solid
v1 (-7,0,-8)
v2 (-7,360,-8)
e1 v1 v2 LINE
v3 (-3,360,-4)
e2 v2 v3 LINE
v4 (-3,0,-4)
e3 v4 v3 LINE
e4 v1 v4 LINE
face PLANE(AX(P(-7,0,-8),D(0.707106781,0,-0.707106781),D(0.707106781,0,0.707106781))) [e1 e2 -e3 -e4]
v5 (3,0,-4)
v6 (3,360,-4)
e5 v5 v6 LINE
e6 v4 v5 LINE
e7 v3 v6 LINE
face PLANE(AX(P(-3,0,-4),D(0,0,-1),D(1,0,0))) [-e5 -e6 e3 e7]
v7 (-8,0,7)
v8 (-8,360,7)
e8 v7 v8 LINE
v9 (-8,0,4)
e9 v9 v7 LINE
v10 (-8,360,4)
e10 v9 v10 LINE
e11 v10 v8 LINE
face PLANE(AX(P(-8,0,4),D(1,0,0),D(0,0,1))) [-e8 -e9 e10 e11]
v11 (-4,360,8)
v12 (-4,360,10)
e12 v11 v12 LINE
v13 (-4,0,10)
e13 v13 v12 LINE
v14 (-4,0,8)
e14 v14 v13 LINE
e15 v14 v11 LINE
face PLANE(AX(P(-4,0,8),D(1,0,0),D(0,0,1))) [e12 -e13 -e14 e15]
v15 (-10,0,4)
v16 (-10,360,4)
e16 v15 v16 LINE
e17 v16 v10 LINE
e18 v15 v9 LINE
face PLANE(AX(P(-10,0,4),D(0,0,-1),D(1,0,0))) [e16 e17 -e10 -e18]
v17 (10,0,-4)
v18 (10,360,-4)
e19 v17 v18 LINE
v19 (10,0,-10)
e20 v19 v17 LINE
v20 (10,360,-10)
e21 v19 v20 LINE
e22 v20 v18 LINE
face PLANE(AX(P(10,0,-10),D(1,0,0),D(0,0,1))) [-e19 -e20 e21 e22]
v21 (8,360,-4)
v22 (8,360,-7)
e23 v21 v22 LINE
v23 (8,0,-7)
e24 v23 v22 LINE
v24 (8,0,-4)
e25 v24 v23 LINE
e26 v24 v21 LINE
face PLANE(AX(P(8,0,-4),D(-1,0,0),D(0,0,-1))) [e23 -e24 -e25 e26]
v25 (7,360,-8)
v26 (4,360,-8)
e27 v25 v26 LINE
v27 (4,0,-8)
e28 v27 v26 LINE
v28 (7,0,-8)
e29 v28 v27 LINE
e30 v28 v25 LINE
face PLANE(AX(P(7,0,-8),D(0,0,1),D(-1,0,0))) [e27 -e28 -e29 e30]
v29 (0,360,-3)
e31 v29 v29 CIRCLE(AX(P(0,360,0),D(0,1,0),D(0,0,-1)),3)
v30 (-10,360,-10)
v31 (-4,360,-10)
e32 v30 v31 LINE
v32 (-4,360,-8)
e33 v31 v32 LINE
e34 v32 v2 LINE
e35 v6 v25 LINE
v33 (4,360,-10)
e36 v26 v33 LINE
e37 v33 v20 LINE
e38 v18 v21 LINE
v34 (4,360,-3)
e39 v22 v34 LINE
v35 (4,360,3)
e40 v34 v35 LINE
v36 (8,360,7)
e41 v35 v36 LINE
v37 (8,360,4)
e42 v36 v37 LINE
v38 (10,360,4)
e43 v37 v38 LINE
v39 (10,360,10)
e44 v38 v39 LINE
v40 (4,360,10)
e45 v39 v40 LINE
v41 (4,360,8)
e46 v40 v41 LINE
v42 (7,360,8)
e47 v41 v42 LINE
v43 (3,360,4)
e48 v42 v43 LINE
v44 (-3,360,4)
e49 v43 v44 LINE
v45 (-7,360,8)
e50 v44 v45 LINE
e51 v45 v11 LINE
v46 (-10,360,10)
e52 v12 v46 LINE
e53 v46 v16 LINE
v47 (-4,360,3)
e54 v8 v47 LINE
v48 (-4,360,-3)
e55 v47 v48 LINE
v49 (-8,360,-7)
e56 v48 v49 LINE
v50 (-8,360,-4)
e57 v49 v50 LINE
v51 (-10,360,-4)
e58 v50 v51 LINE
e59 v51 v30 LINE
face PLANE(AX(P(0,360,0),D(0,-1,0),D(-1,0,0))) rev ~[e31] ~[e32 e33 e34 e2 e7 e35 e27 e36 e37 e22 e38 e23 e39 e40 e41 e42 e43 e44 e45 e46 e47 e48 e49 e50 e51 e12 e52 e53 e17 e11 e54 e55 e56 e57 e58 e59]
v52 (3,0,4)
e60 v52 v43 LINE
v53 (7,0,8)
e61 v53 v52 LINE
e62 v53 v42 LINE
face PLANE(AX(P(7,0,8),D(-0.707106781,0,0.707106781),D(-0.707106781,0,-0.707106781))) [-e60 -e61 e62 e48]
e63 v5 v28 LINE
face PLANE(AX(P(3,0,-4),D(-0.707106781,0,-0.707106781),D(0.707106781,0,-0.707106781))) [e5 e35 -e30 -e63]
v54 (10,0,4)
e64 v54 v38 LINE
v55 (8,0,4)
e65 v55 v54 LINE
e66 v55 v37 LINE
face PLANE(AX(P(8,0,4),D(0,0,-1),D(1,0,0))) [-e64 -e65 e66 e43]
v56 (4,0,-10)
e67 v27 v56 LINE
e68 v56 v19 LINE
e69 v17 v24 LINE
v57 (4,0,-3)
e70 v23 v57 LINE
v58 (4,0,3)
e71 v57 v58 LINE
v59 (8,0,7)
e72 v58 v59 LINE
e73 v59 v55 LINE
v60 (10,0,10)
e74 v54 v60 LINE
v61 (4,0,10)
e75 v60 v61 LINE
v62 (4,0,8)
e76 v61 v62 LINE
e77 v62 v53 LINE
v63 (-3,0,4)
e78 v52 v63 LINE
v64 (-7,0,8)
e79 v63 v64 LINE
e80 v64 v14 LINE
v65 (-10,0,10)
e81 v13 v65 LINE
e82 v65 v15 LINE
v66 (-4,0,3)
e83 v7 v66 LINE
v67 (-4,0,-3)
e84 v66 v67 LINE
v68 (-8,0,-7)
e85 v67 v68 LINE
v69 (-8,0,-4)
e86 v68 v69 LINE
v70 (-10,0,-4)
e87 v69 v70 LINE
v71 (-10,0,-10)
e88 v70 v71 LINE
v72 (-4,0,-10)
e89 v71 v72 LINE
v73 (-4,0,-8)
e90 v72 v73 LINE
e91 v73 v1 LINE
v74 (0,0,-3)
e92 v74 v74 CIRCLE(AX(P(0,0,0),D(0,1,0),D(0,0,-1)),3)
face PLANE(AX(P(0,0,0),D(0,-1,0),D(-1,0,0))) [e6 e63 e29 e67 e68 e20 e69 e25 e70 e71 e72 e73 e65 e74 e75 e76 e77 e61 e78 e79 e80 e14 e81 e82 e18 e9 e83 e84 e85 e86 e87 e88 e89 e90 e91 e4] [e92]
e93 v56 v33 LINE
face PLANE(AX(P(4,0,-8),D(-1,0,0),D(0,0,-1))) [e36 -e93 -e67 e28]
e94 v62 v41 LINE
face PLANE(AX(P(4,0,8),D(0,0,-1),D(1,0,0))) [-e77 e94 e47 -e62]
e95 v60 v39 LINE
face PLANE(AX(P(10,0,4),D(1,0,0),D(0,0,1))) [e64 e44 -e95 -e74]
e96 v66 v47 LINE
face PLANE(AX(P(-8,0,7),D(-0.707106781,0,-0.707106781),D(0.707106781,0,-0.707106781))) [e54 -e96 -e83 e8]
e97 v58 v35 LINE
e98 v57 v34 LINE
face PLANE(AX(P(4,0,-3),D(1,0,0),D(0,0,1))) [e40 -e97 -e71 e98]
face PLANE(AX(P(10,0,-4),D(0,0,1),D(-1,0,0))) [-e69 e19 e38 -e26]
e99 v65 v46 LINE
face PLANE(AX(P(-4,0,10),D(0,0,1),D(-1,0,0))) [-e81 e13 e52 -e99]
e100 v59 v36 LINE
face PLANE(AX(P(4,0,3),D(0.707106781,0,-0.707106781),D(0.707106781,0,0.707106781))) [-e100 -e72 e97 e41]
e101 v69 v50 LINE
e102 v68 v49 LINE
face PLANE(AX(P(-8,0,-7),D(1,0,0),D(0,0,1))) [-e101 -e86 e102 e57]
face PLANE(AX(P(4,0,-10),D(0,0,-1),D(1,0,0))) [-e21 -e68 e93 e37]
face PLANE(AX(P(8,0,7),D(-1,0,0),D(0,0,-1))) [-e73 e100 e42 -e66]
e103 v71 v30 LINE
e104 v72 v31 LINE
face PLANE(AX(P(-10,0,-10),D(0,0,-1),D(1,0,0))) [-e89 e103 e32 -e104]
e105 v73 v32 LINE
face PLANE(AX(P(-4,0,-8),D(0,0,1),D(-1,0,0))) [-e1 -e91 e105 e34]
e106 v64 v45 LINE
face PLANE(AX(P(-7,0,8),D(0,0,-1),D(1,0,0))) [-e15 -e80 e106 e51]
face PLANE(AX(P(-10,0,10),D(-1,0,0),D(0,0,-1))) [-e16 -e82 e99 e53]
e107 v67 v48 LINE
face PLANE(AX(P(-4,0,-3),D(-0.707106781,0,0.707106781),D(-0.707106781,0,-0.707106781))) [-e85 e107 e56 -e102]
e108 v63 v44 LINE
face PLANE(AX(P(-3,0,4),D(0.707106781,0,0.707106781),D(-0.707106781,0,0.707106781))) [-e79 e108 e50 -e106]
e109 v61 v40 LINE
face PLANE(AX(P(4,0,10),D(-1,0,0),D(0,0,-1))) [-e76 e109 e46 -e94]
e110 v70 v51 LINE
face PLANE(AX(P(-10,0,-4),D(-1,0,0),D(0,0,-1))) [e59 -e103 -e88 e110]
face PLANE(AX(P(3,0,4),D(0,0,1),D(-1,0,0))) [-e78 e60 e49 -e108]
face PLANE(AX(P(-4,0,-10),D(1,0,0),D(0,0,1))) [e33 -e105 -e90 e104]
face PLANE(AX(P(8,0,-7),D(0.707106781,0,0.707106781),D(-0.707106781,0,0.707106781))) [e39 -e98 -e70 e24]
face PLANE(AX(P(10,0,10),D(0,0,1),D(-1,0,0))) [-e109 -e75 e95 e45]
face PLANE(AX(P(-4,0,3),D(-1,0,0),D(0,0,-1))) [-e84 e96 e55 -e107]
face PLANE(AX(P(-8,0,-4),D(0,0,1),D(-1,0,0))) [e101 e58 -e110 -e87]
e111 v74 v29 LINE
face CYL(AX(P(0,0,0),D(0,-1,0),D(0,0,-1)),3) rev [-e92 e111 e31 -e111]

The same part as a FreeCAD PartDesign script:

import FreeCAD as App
import Part
import Sketcher


def add_polygon(sketch, points):
    """Adds a closed chain of lines whose ends are joined by coincident constraints."""
    first, n = sketch.GeometryCount, len(points)
    for a, b in zip(points, points[1:] + points[:1]):
        sketch.addGeometry(Part.LineSegment(App.Vector(*a, 0), App.Vector(*b, 0)), False)
    for i in range(n):
        sketch.addConstraint(Sketcher.Constraint("Coincident", first + i, 2, first + (i + 1) % n, 1))

doc = App.newDocument("Part")
body = doc.addObject("PartDesign::Body", "Body")

# Sketch on XZ plane
sketch1 = body.newObject("Sketcher::SketchObject", "Sketch")
sketch1.AttachmentSupport = (doc.getObject("XZ_Plane"), [""])
sketch1.MapMode = "FlatFace"
add_polygon(sketch1, [(-4, -8), (-4, -10), (-10, -10), (-10, -4), (-8, -4), (-8, -7), (-4, -3), (-4, 3), (-8, 7), (-8, 4), (-10, 4), (-10, 10), (-4, 10), (-4, 8), (-7, 8), (-3, 4), (3, 4), (7, 8), (4, 8), (4, 10), (10, 10), (10, 4), (8, 4), (8, 7), (4, 3), (4, -3), (8, -7), (8, -4), (10, -4), (10, -10), (4, -10), (4, -8), (7, -8), (3, -4), (-3, -4), (-7, -8)])  # lines 0-35
sketch1.addGeometry(Part.Circle(App.Vector(0, 0, 0), App.Vector(0, 0, 1), 3), False)  # 36
sketch1.addConstraint([
    Sketcher.Constraint("Vertical", 0),
    Sketcher.Constraint("Horizontal", 1),
    Sketcher.Constraint("Vertical", 2),
    Sketcher.Constraint("Horizontal", 3),
    Sketcher.Constraint("Vertical", 4),
    Sketcher.Constraint("Vertical", 6),
    Sketcher.Constraint("Vertical", 8),
    Sketcher.Constraint("Horizontal", 9),
    Sketcher.Constraint("Vertical", 10),
    Sketcher.Constraint("Horizontal", 11),
    Sketcher.Constraint("Vertical", 12),
    Sketcher.Constraint("Horizontal", 13),
    Sketcher.Constraint("Horizontal", 15),
    Sketcher.Constraint("Horizontal", 17),
    Sketcher.Constraint("Vertical", 18),
    Sketcher.Constraint("Horizontal", 19),
    Sketcher.Constraint("Vertical", 20),
    Sketcher.Constraint("Horizontal", 21),
    Sketcher.Constraint("Vertical", 22),
    Sketcher.Constraint("Vertical", 24),
    Sketcher.Constraint("Vertical", 26),
    Sketcher.Constraint("Horizontal", 27),
    Sketcher.Constraint("Vertical", 28),
    Sketcher.Constraint("Horizontal", 29),
    Sketcher.Constraint("Vertical", 30),
    Sketcher.Constraint("Horizontal", 31),
    Sketcher.Constraint("Horizontal", 33),
    Sketcher.Constraint("Horizontal", 35),
    Sketcher.Constraint("Coincident", 36, 3, -1, 1),
    Sketcher.Constraint("Symmetric", 0, 2, 18, 2, -1, 1),
    Sketcher.Constraint("Symmetric", 2, 2, 20, 2, -1, 1),
    Sketcher.Constraint("Symmetric", 4, 2, 22, 2, -1, 1),
    Sketcher.Constraint("Symmetric", 5, 2, 23, 2, -1, 1),
    Sketcher.Constraint("Symmetric", 7, 2, 25, 2, -1, 1),
    Sketcher.Constraint("Symmetric", 9, 2, 27, 2, -1, 1),
    Sketcher.Constraint("Symmetric", 11, 2, 29, 2, -1, 1),
    Sketcher.Constraint("Symmetric", 13, 2, 31, 2, -1, 1),
    Sketcher.Constraint("Symmetric", 14, 2, 32, 2, -1, 1),
    Sketcher.Constraint("Symmetric", 16, 2, 34, 2, -1, 1),
    Sketcher.Constraint("Symmetric", 13, 2, 16, 2, -2),
    Sketcher.Constraint("Symmetric", 11, 2, 18, 2, -2),
    Sketcher.Constraint("Symmetric", 9, 2, 20, 2, -2),
    Sketcher.Constraint("Symmetric", 7, 2, 22, 2, -2),
    Sketcher.Constraint("Perpendicular", 5, 7),
    Sketcher.Constraint("Parallel", 7, 14),
    Sketcher.Constraint("Perpendicular", 14, 16),
    Sketcher.Constraint("Perpendicular", 23, 25),
    Sketcher.Constraint("Perpendicular", 32, 34),
    Sketcher.Constraint("Horizontal", 9, 2, 14, 2),
    Sketcher.Constraint("Horizontal", 6, 2, 23, 2),
    Sketcher.Constraint("Vertical", 0, 2, 5, 2),
    Sketcher.Constraint("Equal", 11, 15),
    Sketcher.Constraint("Equal", 27, 0),
    Sketcher.Constraint("Equal", 33, 2),
    Sketcher.Constraint("Equal", 35, 4),
    Sketcher.Constraint("Equal", 2, 6),
    Sketcher.Constraint("Diameter", 36, 6.0),
    Sketcher.Constraint("DistanceX", 1, 2, 1, 1, 6.0),
    Sketcher.Constraint("DistanceX", 3, 1, 3, 2, 2.0),
    Sketcher.Constraint("DistanceX", 13, 2, 13, 1, 3.0),
])
pad1 = body.newObject("PartDesign::Pad", "Pad")
pad1.Profile = sketch1
pad1.Length = 360
pad1.Reversed = True

doc.recompute()
